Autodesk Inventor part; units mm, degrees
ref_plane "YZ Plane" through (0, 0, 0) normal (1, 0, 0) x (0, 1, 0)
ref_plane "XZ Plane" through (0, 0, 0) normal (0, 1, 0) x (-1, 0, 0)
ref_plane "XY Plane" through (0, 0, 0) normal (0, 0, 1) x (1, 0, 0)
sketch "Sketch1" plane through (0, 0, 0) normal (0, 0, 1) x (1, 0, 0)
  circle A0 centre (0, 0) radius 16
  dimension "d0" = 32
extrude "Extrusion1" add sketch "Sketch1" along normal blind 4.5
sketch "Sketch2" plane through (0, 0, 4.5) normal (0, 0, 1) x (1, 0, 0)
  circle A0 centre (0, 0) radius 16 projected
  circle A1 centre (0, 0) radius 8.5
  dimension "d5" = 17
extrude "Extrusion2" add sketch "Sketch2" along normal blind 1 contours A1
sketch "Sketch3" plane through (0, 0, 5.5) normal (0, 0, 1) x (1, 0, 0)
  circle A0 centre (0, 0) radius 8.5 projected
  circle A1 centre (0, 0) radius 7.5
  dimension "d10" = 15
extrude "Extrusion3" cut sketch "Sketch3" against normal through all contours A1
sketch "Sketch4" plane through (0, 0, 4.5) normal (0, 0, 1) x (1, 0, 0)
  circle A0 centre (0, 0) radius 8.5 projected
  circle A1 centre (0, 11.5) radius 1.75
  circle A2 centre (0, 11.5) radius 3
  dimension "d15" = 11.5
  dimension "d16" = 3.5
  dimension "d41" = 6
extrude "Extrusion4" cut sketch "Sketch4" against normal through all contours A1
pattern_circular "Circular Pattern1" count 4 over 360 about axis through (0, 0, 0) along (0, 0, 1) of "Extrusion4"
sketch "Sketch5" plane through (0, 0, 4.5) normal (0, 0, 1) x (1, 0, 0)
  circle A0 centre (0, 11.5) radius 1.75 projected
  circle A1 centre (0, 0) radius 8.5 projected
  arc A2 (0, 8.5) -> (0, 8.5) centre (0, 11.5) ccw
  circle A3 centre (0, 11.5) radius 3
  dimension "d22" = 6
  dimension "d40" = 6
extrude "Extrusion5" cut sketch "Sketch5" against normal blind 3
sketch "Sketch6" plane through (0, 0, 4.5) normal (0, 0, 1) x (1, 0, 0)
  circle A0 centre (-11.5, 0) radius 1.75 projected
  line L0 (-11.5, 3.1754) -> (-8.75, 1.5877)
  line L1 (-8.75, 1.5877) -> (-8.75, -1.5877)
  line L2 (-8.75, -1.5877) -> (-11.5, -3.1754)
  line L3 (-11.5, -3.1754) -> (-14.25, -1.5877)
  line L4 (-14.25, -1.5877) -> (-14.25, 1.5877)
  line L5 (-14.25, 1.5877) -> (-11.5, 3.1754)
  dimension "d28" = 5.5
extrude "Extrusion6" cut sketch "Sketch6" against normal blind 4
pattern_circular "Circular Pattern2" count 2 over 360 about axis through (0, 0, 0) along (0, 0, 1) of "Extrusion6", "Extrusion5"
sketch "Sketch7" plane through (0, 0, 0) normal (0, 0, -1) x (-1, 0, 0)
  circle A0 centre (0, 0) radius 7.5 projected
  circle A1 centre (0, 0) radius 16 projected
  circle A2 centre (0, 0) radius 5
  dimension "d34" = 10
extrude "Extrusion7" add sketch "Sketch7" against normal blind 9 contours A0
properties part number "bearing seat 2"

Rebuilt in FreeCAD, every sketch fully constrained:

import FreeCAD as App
import Part
import Sketcher
Q = App.Units.Quantity


def add_polygon(sketch, points):
    """Adds a closed chain of lines whose ends are joined by coincident constraints."""
    first, n = sketch.GeometryCount, len(points)
    for a, b in zip(points, points[1:] + points[:1]):
        sketch.addGeometry(Part.LineSegment(App.Vector(*a, 0), App.Vector(*b, 0)), False)
    for i in range(n):
        sketch.addConstraint(Sketcher.Constraint("Coincident", first + i, 2, first + (i + 1) % n, 1))

doc = App.newDocument("Part")
body = doc.addObject("PartDesign::Body", "Body")
body.AllowCompound = True

# Sketch on XY plane
sketch1 = doc.addObject("Sketcher::SketchObject", "Sketch")
body.addObject(sketch1)
sketch1.AttachmentSupport = (doc.XY_Plane, [""])
sketch1.MapMode = "FlatFace"
sketch1.addGeometry(Part.Circle(App.Vector(0, 0, 0), App.Vector(0, 0, 1), 16), False)
sketch1.addConstraint([
    Sketcher.Constraint("Coincident", 0, 3, -1, 1),
    Sketcher.Constraint("Diameter", 0, 32.0),
])
pad1 = doc.addObject("PartDesign::Pad", "Pad")
body.addObject(pad1)
pad1.Profile = sketch1
pad1.Length = 4.5

# Sketch on XY plane
sketch2 = doc.addObject("Sketcher::SketchObject", "Sketch001")
body.addObject(sketch2)
sketch2.AttachmentSupport = (doc.XY_Plane, [""])
sketch2.MapMode = "FlatFace"
sketch2.AttachmentOffset = App.Placement(App.Vector(0, 0, 4.5), App.Rotation())
sketch2.addGeometry(Part.Circle(App.Vector(0, 0, 0), App.Vector(0, 0, 1), 8), False)
sketch2.addConstraint([
    Sketcher.Constraint("Coincident", 0, 3, -1, 1),
    Sketcher.Constraint("Diameter", 0, 17.0),
])
pad2 = doc.addObject("PartDesign::Pad", "Pad001")
body.addObject(pad2)
pad2.Profile = sketch2
pad2.Length = 1

# Sketch on XY plane
sketch3 = doc.addObject("Sketcher::SketchObject", "Sketch002")
body.addObject(sketch3)
sketch3.AttachmentSupport = (doc.XY_Plane, [""])
sketch3.MapMode = "FlatFace"
sketch3.AttachmentOffset = App.Placement(App.Vector(0, 0, 5.5), App.Rotation())
sketch3.addGeometry(Part.Circle(App.Vector(0, 0, 0), App.Vector(0, 0, 1), 8), False)
sketch3.addConstraint([
    Sketcher.Constraint("Coincident", 0, 3, -1, 1),
    Sketcher.Constraint("Diameter", 0, 15.0),
])
pocket1 = doc.addObject("PartDesign::Pocket", "Pocket")
body.addObject(pocket1)
pocket1.Profile = sketch3
pocket1.Type = "ThroughAll"

# Sketch on XY plane
sketch4 = doc.addObject("Sketcher::SketchObject", "Sketch003")
body.addObject(sketch4)
sketch4.AttachmentSupport = (doc.XY_Plane, [""])
sketch4.MapMode = "FlatFace"
sketch4.AttachmentOffset = App.Placement(App.Vector(0, 0, 4.5), App.Rotation())
sketch4.addGeometry(Part.Circle(App.Vector(0, 11.5, 0), App.Vector(0, 0, 1), 1.8), False)
sketch4.addConstraint([
    Sketcher.Constraint("PointOnObject", 0, 3, -2),
    Sketcher.Constraint("Diameter", 0, 3.5),
    Sketcher.Constraint("DistanceY", -1, 1, 0, 3, 11.5),
])
pocket2 = doc.addObject("PartDesign::Pocket", "Pocket001")
body.addObject(pocket2)
pocket2.Profile = sketch4
pocket2.Type = "ThroughAll"
doc.recompute()

polarpattern = doc.addObject("PartDesign::PolarPattern", "PolarPattern")
body.addObject(polarpattern)
polarpattern.Originals = [pocket2]
polarpattern.Axis = (doc.Z_Axis, [""])
polarpattern.Angle = 360
polarpattern.Occurrences = 4
body.Tip = polarpattern

# Sketch on XY plane
sketch5 = doc.addObject("Sketcher::SketchObject", "Sketch004")
body.addObject(sketch5)
sketch5.AttachmentSupport = (doc.XY_Plane, [""])
sketch5.MapMode = "FlatFace"
sketch5.AttachmentOffset = App.Placement(App.Vector(0, 0, 4.5), App.Rotation())
sketch5.addGeometry([
    Part.Circle(App.Vector(0, 0, 0), App.Vector(0, 0, 1), 8.5),
    Part.Circle(App.Vector(0, 11.5, 0), App.Vector(0, 0, 1), 3),
    Part.Circle(App.Vector(0, 11.5, 0), App.Vector(0, 0, 1), 1.8),
], False)
sketch5.addConstraint([
    Sketcher.Constraint("Coincident", 0, 3, -1, 1),
    Sketcher.Constraint("Coincident", 2, 3, 1, 3),
    Sketcher.Constraint("PointOnObject", 1, 3, -2),
    Sketcher.Constraint("Diameter", 1, 6.0),
    Sketcher.Constraint("Diameter", 0, 17.0),
    Sketcher.Constraint("Diameter", 2, 3.5),
    Sketcher.Constraint("DistanceY", -1, 1, 1, 3, 11.5),
])
pocket3 = doc.addObject("PartDesign::Pocket", "Pocket002")
body.addObject(pocket3)
pocket3.Profile = sketch5
pocket3.Length = 3

# Sketch on XY plane
sketch6 = doc.addObject("Sketcher::SketchObject", "Sketch005")
body.addObject(sketch6)
sketch6.AttachmentSupport = (doc.XY_Plane, [""])
sketch6.MapMode = "FlatFace"
sketch6.AttachmentOffset = App.Placement(App.Vector(0, 0, 4.5), App.Rotation())
add_polygon(sketch6, [(-8.8, 1.6), (-11.5, 3.2), (-14.2, 1.6), (-14.2, -1.6), (-11.5, -3.2), (-8.8, -1.6)])  # lines 0-5
sketch6.addGeometry(Part.Circle(App.Vector(-11.5, 0, 0), App.Vector(0, 0, 1), 1.8), False)  # 6
sketch6.addConstraint([
    Sketcher.Constraint("Vertical", 2),
    Sketcher.Constraint("Vertical", 5),
    Sketcher.Constraint("Symmetric", 0, 2, 3, 2, -1),
    Sketcher.Constraint("PointOnObject", 6, 3, -1),
    Sketcher.Constraint("Parallel", 0, 3),
    Sketcher.Constraint("Parallel", 1, 4),
    Sketcher.Constraint("Horizontal", 2, 2, 4, 2),
    Sketcher.Constraint("Horizontal", 1, 2, 5, 2),
    Sketcher.Constraint("Vertical", 6, 3, 0, 2),
    Sketcher.Constraint("Diameter", 6, 3.5),
    Sketcher.Constraint("DistanceX", 2, 2, 4, 2, 5.5),
    Sketcher.Constraint("Angle", 0, Q("150.0002 deg")),
    Sketcher.Constraint("DistanceX", 6, 3, -1, 1, 11.5),
    Sketcher.Constraint("DistanceY", 2, 2, 2, 1, 3.1754),
])
pocket4 = doc.addObject("PartDesign::Pocket", "Pocket003")
body.addObject(pocket4)
pocket4.Profile = sketch6
pocket4.Length = 4
doc.recompute()

polarpattern2 = doc.addObject("PartDesign::PolarPattern", "PolarPattern001")
body.addObject(polarpattern2)
polarpattern2.Originals = [pocket4, pocket3]
polarpattern2.Axis = (doc.Z_Axis, [""])
polarpattern2.Angle = 360
polarpattern2.Occurrences = 2
body.Tip = polarpattern2

# Sketch on XY plane
sketch7 = doc.addObject("Sketcher::SketchObject", "Sketch006")
body.addObject(sketch7)
sketch7.AttachmentSupport = (doc.XY_Plane, [""])
sketch7.MapMode = "FlatFace"
sketch7.addGeometry([
    Part.Circle(App.Vector(0, 0, 0), App.Vector(0, 0, 1), 8),
    Part.Circle(App.Vector(0, 0, 0), App.Vector(0, 0, 1), 5),
], False)
sketch7.addConstraint([
    Sketcher.Constraint("Coincident", 0, 3, -1, 1),
    Sketcher.Constraint("Coincident", 1, 3, -1, 1),
    Sketcher.Constraint("Diameter", 1, 10.0),
    Sketcher.Constraint("Diameter", 0, 15.0),
])
pad3 = doc.addObject("PartDesign::Pad", "Pad002")
body.addObject(pad3)
pad3.Profile = sketch7
pad3.Length = 9

doc.recompute()
